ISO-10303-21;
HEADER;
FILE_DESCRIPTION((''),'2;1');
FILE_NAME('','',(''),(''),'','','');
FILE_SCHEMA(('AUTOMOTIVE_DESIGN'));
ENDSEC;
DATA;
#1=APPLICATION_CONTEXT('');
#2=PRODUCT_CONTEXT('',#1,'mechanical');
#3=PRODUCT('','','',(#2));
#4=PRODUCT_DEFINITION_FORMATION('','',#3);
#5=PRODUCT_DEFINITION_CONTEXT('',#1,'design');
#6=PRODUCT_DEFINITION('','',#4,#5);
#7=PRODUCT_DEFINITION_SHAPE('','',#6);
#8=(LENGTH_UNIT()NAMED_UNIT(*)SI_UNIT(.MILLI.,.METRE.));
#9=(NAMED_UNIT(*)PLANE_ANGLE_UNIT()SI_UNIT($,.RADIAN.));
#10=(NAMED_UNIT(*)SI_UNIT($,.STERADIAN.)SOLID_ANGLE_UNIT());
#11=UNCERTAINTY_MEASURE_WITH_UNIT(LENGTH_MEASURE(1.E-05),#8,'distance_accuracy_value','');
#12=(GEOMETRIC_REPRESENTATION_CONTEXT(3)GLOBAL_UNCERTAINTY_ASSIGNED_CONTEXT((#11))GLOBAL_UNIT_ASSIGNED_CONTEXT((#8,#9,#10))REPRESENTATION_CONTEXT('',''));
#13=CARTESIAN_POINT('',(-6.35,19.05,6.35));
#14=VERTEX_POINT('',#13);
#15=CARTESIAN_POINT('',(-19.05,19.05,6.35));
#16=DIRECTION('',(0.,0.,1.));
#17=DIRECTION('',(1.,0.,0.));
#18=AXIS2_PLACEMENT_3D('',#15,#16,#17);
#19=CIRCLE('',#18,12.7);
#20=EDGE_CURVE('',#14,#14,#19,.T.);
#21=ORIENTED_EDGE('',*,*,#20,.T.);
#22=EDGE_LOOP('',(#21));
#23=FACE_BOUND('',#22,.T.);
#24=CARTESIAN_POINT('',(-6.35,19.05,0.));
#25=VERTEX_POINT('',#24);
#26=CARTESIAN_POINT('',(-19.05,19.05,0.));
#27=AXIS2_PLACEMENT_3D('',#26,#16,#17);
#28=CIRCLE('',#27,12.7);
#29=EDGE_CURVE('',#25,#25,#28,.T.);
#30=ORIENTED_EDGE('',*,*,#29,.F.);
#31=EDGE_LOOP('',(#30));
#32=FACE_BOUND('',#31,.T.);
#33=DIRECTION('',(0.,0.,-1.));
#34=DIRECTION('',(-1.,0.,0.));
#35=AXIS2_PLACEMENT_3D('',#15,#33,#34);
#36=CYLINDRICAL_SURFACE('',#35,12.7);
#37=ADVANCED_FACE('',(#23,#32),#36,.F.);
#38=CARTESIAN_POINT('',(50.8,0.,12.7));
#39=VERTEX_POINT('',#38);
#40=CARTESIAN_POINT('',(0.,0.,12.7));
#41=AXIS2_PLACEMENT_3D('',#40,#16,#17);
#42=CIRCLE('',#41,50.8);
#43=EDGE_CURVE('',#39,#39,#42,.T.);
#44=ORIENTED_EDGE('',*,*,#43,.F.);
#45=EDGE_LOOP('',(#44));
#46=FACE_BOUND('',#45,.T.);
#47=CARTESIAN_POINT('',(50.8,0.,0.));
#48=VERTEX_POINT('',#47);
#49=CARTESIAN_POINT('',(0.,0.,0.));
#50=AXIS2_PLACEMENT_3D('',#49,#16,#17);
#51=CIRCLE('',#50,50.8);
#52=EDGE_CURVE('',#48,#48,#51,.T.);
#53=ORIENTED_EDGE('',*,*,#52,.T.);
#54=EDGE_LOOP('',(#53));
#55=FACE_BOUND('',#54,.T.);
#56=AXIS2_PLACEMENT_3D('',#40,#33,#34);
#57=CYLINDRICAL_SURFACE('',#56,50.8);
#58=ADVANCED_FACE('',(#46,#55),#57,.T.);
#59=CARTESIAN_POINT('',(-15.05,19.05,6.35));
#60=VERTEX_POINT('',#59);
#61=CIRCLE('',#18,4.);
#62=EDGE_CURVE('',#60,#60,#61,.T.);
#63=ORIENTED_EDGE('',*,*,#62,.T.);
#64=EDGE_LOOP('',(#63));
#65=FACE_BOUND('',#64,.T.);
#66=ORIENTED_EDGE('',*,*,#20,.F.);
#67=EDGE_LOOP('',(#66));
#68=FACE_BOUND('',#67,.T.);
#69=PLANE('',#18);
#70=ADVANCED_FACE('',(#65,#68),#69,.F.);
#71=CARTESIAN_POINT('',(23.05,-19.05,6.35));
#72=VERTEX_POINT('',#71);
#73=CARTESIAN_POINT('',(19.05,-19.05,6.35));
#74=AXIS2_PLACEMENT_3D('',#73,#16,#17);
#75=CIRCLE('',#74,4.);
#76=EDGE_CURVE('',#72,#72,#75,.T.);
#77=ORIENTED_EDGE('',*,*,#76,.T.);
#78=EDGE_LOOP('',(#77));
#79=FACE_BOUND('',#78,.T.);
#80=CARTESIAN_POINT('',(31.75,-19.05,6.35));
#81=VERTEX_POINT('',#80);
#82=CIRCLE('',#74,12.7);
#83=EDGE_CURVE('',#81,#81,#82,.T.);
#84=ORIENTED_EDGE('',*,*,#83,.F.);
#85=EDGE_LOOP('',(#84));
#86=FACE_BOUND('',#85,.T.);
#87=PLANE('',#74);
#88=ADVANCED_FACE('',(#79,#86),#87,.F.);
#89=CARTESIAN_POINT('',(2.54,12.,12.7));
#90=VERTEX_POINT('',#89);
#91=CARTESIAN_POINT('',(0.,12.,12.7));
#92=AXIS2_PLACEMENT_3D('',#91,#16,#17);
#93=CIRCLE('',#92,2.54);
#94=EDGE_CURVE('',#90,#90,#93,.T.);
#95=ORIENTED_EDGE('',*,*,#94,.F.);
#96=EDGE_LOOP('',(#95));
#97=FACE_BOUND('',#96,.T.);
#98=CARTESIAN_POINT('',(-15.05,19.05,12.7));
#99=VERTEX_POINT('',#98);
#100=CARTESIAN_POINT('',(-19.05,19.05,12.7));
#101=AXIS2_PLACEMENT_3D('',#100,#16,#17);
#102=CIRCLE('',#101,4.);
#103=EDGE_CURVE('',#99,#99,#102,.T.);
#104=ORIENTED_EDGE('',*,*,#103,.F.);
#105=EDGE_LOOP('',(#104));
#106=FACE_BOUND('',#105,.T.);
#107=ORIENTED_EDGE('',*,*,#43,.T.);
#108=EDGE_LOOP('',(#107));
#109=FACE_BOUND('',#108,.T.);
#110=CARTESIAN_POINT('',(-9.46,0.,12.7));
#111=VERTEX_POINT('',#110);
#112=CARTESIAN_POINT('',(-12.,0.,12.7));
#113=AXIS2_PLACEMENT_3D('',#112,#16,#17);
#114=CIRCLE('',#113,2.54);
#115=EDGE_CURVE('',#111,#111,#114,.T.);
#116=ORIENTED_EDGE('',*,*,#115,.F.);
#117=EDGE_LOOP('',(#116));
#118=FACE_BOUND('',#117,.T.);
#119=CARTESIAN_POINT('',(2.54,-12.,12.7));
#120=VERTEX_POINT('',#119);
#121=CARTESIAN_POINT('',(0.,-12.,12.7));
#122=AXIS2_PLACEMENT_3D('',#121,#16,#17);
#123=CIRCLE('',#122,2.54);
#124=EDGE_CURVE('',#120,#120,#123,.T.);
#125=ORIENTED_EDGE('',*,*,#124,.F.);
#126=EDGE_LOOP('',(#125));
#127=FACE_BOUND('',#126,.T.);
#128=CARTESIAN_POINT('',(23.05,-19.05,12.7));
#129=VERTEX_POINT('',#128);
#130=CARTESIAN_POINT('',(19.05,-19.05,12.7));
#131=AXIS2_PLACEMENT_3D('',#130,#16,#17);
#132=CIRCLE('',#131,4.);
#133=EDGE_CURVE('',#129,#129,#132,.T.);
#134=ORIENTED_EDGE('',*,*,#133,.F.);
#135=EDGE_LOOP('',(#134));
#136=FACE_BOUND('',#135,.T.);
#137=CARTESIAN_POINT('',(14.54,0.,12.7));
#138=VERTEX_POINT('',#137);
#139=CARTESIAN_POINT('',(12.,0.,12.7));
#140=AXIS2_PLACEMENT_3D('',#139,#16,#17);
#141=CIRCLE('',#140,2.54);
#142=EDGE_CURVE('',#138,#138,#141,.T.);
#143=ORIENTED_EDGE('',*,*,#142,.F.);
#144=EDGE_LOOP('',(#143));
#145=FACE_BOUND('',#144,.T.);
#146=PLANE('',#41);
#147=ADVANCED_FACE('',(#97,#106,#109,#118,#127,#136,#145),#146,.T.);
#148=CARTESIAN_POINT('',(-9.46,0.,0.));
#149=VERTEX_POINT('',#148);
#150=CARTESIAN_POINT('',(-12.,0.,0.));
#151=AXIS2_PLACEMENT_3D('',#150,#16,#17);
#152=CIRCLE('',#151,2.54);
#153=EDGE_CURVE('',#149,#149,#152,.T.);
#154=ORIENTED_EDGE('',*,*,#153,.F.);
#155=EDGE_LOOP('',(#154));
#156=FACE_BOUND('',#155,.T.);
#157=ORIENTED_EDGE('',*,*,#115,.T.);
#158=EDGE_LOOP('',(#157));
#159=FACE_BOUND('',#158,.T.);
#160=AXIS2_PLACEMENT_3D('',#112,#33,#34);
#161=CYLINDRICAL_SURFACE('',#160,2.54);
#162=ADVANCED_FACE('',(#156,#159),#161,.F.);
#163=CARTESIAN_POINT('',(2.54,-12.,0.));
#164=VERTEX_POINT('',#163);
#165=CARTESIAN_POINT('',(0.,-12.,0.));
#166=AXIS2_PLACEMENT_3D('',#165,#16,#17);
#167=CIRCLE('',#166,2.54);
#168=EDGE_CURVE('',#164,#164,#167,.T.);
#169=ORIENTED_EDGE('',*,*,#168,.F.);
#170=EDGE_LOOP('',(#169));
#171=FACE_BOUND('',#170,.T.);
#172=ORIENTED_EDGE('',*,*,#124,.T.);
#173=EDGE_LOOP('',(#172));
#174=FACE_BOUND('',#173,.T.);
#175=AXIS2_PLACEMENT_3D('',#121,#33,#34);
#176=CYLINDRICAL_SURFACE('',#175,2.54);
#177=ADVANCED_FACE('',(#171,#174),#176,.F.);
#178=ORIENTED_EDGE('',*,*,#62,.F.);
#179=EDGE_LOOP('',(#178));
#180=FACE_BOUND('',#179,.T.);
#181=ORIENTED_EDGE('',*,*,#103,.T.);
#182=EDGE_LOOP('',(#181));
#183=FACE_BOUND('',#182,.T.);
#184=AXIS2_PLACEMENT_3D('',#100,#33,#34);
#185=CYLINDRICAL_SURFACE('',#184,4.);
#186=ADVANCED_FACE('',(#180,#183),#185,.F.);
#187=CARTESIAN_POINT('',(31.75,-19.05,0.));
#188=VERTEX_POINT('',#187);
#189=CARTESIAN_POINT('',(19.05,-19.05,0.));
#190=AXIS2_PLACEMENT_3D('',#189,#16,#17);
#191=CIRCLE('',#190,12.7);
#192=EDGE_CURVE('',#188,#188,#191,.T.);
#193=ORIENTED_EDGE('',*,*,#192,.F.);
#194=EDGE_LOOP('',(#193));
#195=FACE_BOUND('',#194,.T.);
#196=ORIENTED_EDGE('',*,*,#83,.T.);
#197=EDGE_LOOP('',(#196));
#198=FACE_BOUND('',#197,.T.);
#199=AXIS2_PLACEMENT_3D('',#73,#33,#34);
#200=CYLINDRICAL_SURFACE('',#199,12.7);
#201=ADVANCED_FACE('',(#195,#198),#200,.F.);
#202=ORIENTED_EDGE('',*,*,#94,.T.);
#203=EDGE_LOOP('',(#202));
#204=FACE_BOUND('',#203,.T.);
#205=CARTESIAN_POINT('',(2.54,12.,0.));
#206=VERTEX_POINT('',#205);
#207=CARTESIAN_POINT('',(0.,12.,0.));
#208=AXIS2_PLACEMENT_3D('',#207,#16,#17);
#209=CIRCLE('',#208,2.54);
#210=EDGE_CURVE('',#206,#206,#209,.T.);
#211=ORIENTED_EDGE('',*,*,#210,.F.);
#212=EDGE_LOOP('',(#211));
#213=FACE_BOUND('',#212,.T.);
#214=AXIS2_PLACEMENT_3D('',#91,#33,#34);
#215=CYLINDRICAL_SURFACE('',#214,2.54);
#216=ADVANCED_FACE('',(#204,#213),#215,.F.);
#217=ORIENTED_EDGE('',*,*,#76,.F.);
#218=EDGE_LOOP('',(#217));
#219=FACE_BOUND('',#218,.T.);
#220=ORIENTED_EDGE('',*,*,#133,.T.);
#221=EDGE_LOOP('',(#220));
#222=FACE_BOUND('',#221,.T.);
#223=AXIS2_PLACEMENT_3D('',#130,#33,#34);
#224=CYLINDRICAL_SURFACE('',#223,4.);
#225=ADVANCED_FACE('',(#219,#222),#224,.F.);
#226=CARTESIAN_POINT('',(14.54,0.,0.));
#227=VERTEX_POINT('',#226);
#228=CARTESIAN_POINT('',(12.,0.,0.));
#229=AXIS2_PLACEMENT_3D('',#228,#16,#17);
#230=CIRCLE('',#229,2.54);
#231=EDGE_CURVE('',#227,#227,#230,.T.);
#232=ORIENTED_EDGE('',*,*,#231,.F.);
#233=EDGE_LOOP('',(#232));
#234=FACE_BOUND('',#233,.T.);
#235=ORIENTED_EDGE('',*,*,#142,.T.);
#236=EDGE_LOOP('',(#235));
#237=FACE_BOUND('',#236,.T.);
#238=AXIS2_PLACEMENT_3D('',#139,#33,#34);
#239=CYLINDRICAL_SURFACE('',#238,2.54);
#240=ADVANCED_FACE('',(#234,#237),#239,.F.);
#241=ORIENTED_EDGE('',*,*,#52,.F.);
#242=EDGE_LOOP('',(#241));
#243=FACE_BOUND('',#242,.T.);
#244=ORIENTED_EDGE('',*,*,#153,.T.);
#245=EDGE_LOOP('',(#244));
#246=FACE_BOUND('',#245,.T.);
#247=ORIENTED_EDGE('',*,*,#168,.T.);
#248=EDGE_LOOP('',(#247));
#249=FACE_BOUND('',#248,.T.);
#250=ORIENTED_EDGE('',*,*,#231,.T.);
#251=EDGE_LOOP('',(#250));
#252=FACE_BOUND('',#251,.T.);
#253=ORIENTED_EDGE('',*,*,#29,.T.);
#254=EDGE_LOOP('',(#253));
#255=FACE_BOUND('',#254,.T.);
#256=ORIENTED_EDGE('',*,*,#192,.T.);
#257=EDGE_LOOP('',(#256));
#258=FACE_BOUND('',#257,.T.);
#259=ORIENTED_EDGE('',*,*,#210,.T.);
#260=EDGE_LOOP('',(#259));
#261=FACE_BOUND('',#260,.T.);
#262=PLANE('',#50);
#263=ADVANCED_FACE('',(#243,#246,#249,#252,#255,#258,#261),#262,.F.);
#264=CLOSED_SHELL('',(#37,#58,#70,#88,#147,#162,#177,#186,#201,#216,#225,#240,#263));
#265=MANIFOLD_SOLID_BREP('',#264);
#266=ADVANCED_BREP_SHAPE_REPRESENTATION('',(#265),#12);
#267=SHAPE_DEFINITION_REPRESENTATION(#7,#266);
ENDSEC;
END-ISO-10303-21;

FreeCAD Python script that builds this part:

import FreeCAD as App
import Part
import Sketcher
from FreeCAD import Vector
Q = App.Units.Quantity

doc = App.newDocument("Part")
body = doc.addObject("PartDesign::Body", "Body")

sketch1 = doc.addObject("Sketcher::SketchObject", "Sketch")
body.addObject(sketch1)
sketch1.AttachmentSupport = (doc.XY_Plane, [""])
sketch1.MapMode = "FlatFace"
sketch1.addGeometry([
    Part.Circle(Vector(0, 0, 0), Vector(0, 0, 1), 50.8),
    Part.Circle(Vector(0, -12, 0), Vector(0, 0, 1), 2.54),
    Part.Circle(Vector(-12, 0, 0), Vector(0, 0, 1), 2.54),
    Part.Circle(Vector(12, 0, 0), Vector(0, 0, 1), 2.54),
    Part.Circle(Vector(0, 12, 0), Vector(0, 0, 1), 2.54),
], False)
sketch1.addConstraint([
    Sketcher.Constraint("Coincident", 0, 3, -1, 1),
    Sketcher.Constraint("Equal", 1, 2),
    Sketcher.Constraint("Equal", 2, 3),
    Sketcher.Constraint("Equal", 3, 4),
    Sketcher.Constraint("Symmetric", 2, 3, 3, 3, -1, 1),
    Sketcher.Constraint("Symmetric", 1, 3, 4, 3, -1, 1),
    Sketcher.Constraint("PointOnObject", 1, 3, -2),
    Sketcher.Constraint("PointOnObject", 2, 3, -1),
    Sketcher.Constraint("Diameter", 0, Q("4 in")),
    Sketcher.Constraint("Diameter", 1, Q("0.2 in")),
    Sketcher.Constraint("DistanceY", 1, 3, -1, 1, Q("12 mm")),
    Sketcher.Constraint("DistanceX", 2, 3, -1, 1, Q("12 mm")),
])
pad1 = doc.addObject("PartDesign::Pad", "Pad")
body.addObject(pad1)
pad1.Profile = sketch1
pad1.Length = Q("0.5 in")

sketch2 = doc.addObject("Sketcher::SketchObject", "Sketch001")
body.addObject(sketch2)
sketch2.AttachmentSupport = (doc.XY_Plane, [""])
sketch2.MapMode = "FlatFace"
sketch2.addGeometry(Part.Circle(Vector(19.05, -19.05, 0), Vector(0, 0, 1), 4), False)
sketch2.addConstraint([
    Sketcher.Constraint("Diameter", 0, Q("8 mm")),
    Sketcher.Constraint("DistanceX", -1, 1, 0, 3, Q("0.75 in")),
    Sketcher.Constraint("DistanceY", 0, 3, -1, 1, Q("0.75 in")),
])
pocket1 = doc.addObject("PartDesign::Pocket", "Pocket")
body.addObject(pocket1)
pocket1.Profile = sketch2
pocket1.Type = "ThroughAll"
pocket1.Reversed = True

sketch3 = doc.addObject("Sketcher::SketchObject", "Sketch002")
body.addObject(sketch3)
sketch3.AttachmentSupport = (doc.XY_Plane, [""])
sketch3.MapMode = "FlatFace"
sketch3.addGeometry(Part.Circle(Vector(19.05, -19.05, 0), Vector(0, 0, 1), 12.7), False)
sketch3.addConstraint([
    Sketcher.Constraint("Diameter", 0, Q("1 in")),
    Sketcher.Constraint("DistanceX", -1, 1, 0, 3, Q("0.75 in")),
    Sketcher.Constraint("DistanceY", 0, 3, -1, 1, Q("0.75 in")),
])
pocket2 = doc.addObject("PartDesign::Pocket", "Pocket001")
body.addObject(pocket2)
pocket2.Profile = sketch3
pocket2.Length = Q("0.25 in")
pocket2.Reversed = True

sketch4 = doc.addObject("Sketcher::SketchObject", "Sketch003")
body.addObject(sketch4)
sketch4.AttachmentSupport = (doc.XY_Plane, [""])
sketch4.MapMode = "FlatFace"
sketch4.addGeometry(Part.Circle(Vector(-19.05, 19.05, 0), Vector(0, 0, 1), 4), False)
sketch4.addConstraint([
    Sketcher.Constraint("Diameter", 0, Q("8 mm")),
    Sketcher.Constraint("DistanceX", 0, 3, -1, 1, Q("0.75 in")),
    Sketcher.Constraint("DistanceY", -1, 1, 0, 3, Q("0.75 in")),
])
pocket3 = doc.addObject("PartDesign::Pocket", "Pocket002")
body.addObject(pocket3)
pocket3.Profile = sketch4
pocket3.Type = "ThroughAll"
pocket3.Reversed = True

sketch5 = doc.addObject("Sketcher::SketchObject", "Sketch004")
body.addObject(sketch5)
sketch5.AttachmentSupport = (doc.XY_Plane, [""])
sketch5.MapMode = "FlatFace"
sketch5.addGeometry(Part.Circle(Vector(-19.05, 19.05, 0), Vector(0, 0, 1), 12.7), False)
sketch5.addConstraint([
    Sketcher.Constraint("Diameter", 0, Q("1 in")),
    Sketcher.Constraint("DistanceX", 0, 3, -1, 1, Q("0.75 in")),
    Sketcher.Constraint("DistanceY", -1, 1, 0, 3, Q("0.75 in")),
])
pocket4 = doc.addObject("PartDesign::Pocket", "Pocket003")
body.addObject(pocket4)
pocket4.Profile = sketch5
pocket4.Length = Q("0.25 in")
pocket4.Reversed = True

doc.recompute()
